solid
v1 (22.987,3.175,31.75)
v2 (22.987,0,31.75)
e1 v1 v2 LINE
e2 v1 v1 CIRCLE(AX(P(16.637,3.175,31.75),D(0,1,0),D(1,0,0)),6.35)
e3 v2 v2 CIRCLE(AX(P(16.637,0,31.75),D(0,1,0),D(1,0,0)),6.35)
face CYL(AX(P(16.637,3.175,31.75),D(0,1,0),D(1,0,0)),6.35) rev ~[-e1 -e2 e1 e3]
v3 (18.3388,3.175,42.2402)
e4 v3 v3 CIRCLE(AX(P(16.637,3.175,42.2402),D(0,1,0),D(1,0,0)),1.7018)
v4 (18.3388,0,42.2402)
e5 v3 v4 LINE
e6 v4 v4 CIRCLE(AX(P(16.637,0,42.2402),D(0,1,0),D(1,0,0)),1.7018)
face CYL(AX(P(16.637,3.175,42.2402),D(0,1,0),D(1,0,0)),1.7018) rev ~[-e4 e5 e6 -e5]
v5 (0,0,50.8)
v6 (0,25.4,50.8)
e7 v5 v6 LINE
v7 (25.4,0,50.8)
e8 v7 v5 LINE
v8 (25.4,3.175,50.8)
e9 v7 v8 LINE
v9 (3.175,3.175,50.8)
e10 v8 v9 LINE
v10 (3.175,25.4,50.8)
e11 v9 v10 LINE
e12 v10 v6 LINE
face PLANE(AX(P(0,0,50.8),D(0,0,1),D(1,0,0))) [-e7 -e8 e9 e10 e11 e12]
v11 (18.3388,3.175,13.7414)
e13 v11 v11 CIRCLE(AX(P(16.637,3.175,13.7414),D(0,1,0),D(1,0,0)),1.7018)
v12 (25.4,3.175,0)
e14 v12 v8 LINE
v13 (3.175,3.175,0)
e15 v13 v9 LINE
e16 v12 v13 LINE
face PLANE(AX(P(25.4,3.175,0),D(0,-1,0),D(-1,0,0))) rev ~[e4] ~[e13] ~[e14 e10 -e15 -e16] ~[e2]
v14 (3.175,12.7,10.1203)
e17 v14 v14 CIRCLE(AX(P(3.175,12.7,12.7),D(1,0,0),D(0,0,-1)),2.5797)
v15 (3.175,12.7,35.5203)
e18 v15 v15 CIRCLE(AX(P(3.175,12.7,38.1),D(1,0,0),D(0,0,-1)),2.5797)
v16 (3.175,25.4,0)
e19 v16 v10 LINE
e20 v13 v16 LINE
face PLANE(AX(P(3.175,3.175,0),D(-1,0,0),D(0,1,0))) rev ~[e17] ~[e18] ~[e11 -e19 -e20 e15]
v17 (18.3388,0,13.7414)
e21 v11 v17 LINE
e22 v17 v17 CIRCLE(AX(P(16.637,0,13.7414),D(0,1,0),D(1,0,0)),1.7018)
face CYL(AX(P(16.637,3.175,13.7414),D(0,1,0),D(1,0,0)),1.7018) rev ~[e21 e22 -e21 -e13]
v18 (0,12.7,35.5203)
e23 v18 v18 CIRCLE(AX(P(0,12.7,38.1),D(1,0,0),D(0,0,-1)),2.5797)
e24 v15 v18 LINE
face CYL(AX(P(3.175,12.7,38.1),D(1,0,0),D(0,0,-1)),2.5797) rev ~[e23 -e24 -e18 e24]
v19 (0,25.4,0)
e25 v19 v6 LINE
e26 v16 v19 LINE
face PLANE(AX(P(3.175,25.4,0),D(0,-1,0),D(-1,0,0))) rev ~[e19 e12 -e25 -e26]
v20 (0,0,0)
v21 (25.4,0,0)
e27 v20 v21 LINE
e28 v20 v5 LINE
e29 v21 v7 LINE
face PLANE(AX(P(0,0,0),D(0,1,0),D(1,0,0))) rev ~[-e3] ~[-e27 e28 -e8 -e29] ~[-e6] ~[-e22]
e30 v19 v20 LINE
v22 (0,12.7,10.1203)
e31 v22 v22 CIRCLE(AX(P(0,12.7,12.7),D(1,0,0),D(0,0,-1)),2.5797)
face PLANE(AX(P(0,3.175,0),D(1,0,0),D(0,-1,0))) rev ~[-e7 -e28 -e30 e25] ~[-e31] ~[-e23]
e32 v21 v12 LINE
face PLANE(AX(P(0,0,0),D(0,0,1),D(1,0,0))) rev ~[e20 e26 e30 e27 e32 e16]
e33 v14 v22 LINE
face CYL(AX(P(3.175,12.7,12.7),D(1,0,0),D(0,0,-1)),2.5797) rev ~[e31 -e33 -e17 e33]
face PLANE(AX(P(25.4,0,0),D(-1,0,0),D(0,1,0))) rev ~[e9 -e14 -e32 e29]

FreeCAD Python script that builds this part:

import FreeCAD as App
import Part
import Sketcher
from FreeCAD import Vector
Q = App.Units.Quantity

doc = App.newDocument("Part")
params = doc.addObject("Spreadsheet::Sheet", "Params")
for row, (alias, value) in enumerate([
    ("sketch1_width", "1 in"),
    ("sketch1_width2", "0.125 in"),
    ("pad1_length", "2 in"),
    ("sketch2_diameter", "0.5 in"),
    ("pocket1_length", "2 in"),
    ("sketch3_diameter", "0.134 in"),
    ("pocket2_length", "2 in"),
    ("sketch4_diameter", "0.203126 in"),
    ("pocket3_length", "2 in"),
], start=1):
    params.set(f"A{row}", alias)
    params.set(f"B{row}", "=" + value)
    params.setAlias(f"B{row}", alias)

body = doc.addObject("PartDesign::Body", "Body")

# Sketch on XY plane
sketch1 = doc.addObject("Sketcher::SketchObject", "Sketch")
body.addObject(sketch1)
sketch1.AttachmentSupport = (doc.XY_Plane, [""])
sketch1.MapMode = "FlatFace"
sketch1.addGeometry(Part.LineSegment(Vector(0, 0, 0), Vector(25.4, 0, 0)), False)
sketch1.addGeometry(Part.LineSegment(Vector(25.4, 0, 0), Vector(25.4, 3.175, 0)), False)
sketch1.addGeometry(Part.LineSegment(Vector(25.4, 3.175, 0), Vector(3.175, 3.175, 0)), False)
sketch1.addGeometry(Part.LineSegment(Vector(3.175, 3.175, 0), Vector(3.175, 25.4, 0)), False)
sketch1.addGeometry(Part.LineSegment(Vector(3.175, 25.4, 0), Vector(0, 25.4, 0)), False)
sketch1.addGeometry(Part.LineSegment(Vector(0, 25.4, 0), Vector(0, 0, 0)), False)
sketch1.addConstraint(Sketcher.Constraint("Coincident", 0, 2, 1, 1))
sketch1.addConstraint(Sketcher.Constraint("Coincident", 1, 2, 2, 1))
sketch1.addConstraint(Sketcher.Constraint("Coincident", 2, 2, 3, 1))
sketch1.addConstraint(Sketcher.Constraint("Coincident", 3, 2, 4, 1))
sketch1.addConstraint(Sketcher.Constraint("Coincident", 4, 2, 5, 1))
sketch1.addConstraint(Sketcher.Constraint("Coincident", 5, 2, 0, 1))
sketch1.addConstraint(Sketcher.Constraint("Horizontal", 0))
sketch1.addConstraint(Sketcher.Constraint("Vertical", 1))
sketch1.addConstraint(Sketcher.Constraint("Horizontal", 2))
sketch1.addConstraint(Sketcher.Constraint("Vertical", 3))
sketch1.addConstraint(Sketcher.Constraint("Horizontal", 4))
sketch1.addConstraint(Sketcher.Constraint("Vertical", 5))
sketch1.addConstraint(Sketcher.Constraint("Coincident", 5, 2, -1, 1))
sketch1.addConstraint(Sketcher.Constraint("Equal", 4, 1))
sketch1.addConstraint(Sketcher.Constraint("Equal", 2, 3))
sketch1.addConstraint(Sketcher.Constraint("DistanceX", 0, 1, 0, 2, Q("1 in")))
sketch1.addConstraint(Sketcher.Constraint("DistanceX", 4, 2, 4, 1, Q("0.125 in")))
sketch1.setExpression("Constraints[15]", "Params.sketch1_width")
sketch1.setExpression("Constraints[16]", "Params.sketch1_width2")
pad1 = doc.addObject("PartDesign::Pad", "Pad")
body.addObject(pad1)
pad1.Profile = sketch1
pad1.setExpression("Length", "Params.pad1_length")

# Sketch on XZ plane
sketch2 = doc.addObject("Sketcher::SketchObject", "Sketch001")
body.addObject(sketch2)
sketch2.AttachmentSupport = (doc.XZ_Plane, [""])
sketch2.MapMode = "FlatFace"
sketch2.AttachmentOffset = App.Placement(Vector(0, 0, -0.125 * 25.4), App.Rotation())
sketch2.addGeometry(Part.Circle(Vector(16.637, 31.75, 0), Vector(0, 0, 1), 6.35), False)
sketch2.addConstraint(Sketcher.Constraint("Diameter", 0, Q("0.5 in")))
sketch2.addConstraint(Sketcher.Constraint("DistanceX", -1, 1, 0, 3, Q("0.655 in")))
sketch2.addConstraint(Sketcher.Constraint("DistanceY", -1, 1, 0, 3, Q("1.25 in")))
sketch2.setExpression("Constraints[0]", "Params.sketch2_diameter")
pocket1 = doc.addObject("PartDesign::Pocket", "Pocket")
body.addObject(pocket1)
pocket1.Profile = sketch2
pocket1.setExpression("Length", "Params.pocket1_length")
pocket1.Reversed = True

# Sketch on XZ plane
sketch3 = doc.addObject("Sketcher::SketchObject", "Sketch002")
body.addObject(sketch3)
sketch3.AttachmentSupport = (doc.XZ_Plane, [""])
sketch3.MapMode = "FlatFace"
sketch3.AttachmentOffset = App.Placement(Vector(0, 0, -0.125 * 25.4), App.Rotation())
sketch3.addGeometry(Part.Circle(Vector(16.637, 42.2402, 0), Vector(0, 0, 1), 1.7018), False)
sketch3.addGeometry(Part.Circle(Vector(16.637, 13.7414, 0), Vector(0, 0, 1), 1.7018), False)
sketch3.addConstraint(Sketcher.Constraint("Equal", 0, 1))
sketch3.addConstraint(Sketcher.Constraint("Vertical", 0, 3, 1, 3))
sketch3.addConstraint(Sketcher.Constraint("Diameter", 0, Q("0.134 in")))
sketch3.addConstraint(Sketcher.Constraint("DistanceY", 1, 3, 0, 3, Q("1.122 in")))
sketch3.addConstraint(Sketcher.Constraint("DistanceX", -1, 1, 0, 3, Q("0.655 in")))
sketch3.addConstraint(Sketcher.Constraint("DistanceY", -1, 1, 0, 3, Q("1.663 in")))
sketch3.setExpression("Constraints[2]", "Params.sketch3_diameter")
pocket2 = doc.addObject("PartDesign::Pocket", "Pocket001")
body.addObject(pocket2)
pocket2.Profile = sketch3
pocket2.setExpression("Length", "Params.pocket2_length")
pocket2.Reversed = True

# Sketch on YZ plane
sketch4 = doc.addObject("Sketcher::SketchObject", "Sketch003")
body.addObject(sketch4)
sketch4.AttachmentSupport = (doc.YZ_Plane, [""])
sketch4.MapMode = "FlatFace"
sketch4.AttachmentOffset = App.Placement(Vector(0, 0, 0.125 * 25.4), App.Rotation())
sketch4.addGeometry(Part.Circle(Vector(12.7, 12.7, 0), Vector(0, 0, 1), 2.5797), False)
sketch4.addGeometry(Part.Circle(Vector(12.7, 38.1, 0), Vector(0, 0, 1), 2.5797), False)
sketch4.addConstraint(Sketcher.Constraint("Equal", 0, 1))
sketch4.addConstraint(Sketcher.Constraint("Vertical", 0, 3, 1, 3))
sketch4.addConstraint(Sketcher.Constraint("Diameter", 0, Q("0.203126 in")))
sketch4.addConstraint(Sketcher.Constraint("DistanceY", 0, 3, 1, 3, Q("1 in")))
sketch4.addConstraint(Sketcher.Constraint("DistanceX", -1, 1, 0, 3, Q("0.5 in")))
sketch4.addConstraint(Sketcher.Constraint("DistanceY", -1, 1, 0, 3, Q("0.5 in")))
sketch4.setExpression("Constraints[2]", "Params.sketch4_diameter")
pocket3 = doc.addObject("PartDesign::Pocket", "Pocket002")
body.addObject(pocket3)
pocket3.Profile = sketch4
pocket3.setExpression("Length", "Params.pocket3_length")

doc.recompute()
